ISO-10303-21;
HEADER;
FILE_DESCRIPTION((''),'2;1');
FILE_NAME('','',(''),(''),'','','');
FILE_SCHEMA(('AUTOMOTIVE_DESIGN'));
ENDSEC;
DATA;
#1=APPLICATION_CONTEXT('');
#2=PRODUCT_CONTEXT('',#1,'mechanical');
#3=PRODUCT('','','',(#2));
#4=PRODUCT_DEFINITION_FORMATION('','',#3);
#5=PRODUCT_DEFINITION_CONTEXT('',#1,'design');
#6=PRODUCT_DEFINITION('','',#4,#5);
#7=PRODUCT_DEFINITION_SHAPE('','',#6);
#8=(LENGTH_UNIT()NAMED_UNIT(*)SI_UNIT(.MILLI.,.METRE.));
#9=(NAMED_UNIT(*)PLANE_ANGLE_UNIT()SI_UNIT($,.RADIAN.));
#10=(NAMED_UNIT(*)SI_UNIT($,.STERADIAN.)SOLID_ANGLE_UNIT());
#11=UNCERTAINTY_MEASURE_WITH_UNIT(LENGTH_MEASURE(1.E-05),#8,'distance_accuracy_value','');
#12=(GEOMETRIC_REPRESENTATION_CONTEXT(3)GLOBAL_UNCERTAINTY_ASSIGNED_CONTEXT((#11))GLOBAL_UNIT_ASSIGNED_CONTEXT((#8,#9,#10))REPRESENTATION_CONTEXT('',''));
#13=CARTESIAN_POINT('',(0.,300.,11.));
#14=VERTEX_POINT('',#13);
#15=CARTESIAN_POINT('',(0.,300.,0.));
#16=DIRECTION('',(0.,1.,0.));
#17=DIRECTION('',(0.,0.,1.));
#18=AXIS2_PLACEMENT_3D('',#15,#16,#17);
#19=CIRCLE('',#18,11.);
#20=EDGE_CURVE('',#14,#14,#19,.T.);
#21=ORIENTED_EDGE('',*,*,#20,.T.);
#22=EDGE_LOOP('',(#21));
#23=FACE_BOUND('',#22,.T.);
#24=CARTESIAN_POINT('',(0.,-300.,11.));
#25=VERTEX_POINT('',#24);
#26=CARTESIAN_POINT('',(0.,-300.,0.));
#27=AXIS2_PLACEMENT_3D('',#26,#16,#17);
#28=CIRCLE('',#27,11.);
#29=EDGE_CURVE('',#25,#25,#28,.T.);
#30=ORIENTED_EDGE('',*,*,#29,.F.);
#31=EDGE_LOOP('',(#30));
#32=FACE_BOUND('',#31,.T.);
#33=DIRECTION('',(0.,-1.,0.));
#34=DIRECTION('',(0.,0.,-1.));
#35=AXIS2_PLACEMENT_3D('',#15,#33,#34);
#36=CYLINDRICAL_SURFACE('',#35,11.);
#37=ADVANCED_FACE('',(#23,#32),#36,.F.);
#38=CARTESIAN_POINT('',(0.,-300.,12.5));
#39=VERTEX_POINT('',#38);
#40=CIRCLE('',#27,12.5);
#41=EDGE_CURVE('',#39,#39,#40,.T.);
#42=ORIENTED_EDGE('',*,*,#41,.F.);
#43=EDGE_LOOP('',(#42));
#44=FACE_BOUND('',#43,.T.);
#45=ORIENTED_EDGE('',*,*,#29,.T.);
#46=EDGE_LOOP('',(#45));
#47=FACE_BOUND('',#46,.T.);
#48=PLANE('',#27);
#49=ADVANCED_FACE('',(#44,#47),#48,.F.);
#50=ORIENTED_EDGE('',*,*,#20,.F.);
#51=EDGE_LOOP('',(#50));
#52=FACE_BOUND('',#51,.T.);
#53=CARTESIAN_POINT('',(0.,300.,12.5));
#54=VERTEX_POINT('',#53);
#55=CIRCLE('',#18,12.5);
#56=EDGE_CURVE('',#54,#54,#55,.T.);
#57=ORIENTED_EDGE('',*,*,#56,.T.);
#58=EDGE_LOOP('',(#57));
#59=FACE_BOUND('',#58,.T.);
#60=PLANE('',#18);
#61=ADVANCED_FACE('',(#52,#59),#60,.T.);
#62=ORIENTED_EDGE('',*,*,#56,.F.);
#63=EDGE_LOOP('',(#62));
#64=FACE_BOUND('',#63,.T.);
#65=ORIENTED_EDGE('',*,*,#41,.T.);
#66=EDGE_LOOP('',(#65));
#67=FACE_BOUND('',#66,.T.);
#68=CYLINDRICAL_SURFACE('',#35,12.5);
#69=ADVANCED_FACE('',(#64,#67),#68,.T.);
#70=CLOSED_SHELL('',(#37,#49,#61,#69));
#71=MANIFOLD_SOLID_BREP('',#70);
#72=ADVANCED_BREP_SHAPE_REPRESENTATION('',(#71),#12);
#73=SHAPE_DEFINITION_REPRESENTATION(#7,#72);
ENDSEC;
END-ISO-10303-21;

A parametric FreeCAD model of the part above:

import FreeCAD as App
import Part
import Sketcher

V = App.Vector

doc = App.newDocument("Part")
body = doc.addObject("PartDesign::Body", "Body")

sketch1 = body.newObject("Sketcher::SketchObject", "Sketch")
sketch1.AttachmentSupport = (doc.getObject("XZ_Plane"), [""])
sketch1.MapMode = "FlatFace"
sketch1.addGeometry(Part.Circle(V(0, 0, 0), V(0, 0, 1), 12.5), False)
sketch1.addGeometry(Part.Circle(V(0, 0, 0), V(0, 0, 1), 11), False)
sketch1.addConstraint(Sketcher.Constraint("Coincident", 0, 3, -1, 1))
sketch1.addConstraint(Sketcher.Constraint("Coincident", 1, 3, -1, 1))
sketch1.addConstraint(Sketcher.Constraint("Diameter", 0, 25.0))
sketch1.addConstraint(Sketcher.Constraint("Diameter", 1, 22.0))
pad1 = body.newObject("PartDesign::Pad", "Pad")
pad1.Profile = sketch1
pad1.Length = 600
pad1.Midplane = True

doc.recompute()
